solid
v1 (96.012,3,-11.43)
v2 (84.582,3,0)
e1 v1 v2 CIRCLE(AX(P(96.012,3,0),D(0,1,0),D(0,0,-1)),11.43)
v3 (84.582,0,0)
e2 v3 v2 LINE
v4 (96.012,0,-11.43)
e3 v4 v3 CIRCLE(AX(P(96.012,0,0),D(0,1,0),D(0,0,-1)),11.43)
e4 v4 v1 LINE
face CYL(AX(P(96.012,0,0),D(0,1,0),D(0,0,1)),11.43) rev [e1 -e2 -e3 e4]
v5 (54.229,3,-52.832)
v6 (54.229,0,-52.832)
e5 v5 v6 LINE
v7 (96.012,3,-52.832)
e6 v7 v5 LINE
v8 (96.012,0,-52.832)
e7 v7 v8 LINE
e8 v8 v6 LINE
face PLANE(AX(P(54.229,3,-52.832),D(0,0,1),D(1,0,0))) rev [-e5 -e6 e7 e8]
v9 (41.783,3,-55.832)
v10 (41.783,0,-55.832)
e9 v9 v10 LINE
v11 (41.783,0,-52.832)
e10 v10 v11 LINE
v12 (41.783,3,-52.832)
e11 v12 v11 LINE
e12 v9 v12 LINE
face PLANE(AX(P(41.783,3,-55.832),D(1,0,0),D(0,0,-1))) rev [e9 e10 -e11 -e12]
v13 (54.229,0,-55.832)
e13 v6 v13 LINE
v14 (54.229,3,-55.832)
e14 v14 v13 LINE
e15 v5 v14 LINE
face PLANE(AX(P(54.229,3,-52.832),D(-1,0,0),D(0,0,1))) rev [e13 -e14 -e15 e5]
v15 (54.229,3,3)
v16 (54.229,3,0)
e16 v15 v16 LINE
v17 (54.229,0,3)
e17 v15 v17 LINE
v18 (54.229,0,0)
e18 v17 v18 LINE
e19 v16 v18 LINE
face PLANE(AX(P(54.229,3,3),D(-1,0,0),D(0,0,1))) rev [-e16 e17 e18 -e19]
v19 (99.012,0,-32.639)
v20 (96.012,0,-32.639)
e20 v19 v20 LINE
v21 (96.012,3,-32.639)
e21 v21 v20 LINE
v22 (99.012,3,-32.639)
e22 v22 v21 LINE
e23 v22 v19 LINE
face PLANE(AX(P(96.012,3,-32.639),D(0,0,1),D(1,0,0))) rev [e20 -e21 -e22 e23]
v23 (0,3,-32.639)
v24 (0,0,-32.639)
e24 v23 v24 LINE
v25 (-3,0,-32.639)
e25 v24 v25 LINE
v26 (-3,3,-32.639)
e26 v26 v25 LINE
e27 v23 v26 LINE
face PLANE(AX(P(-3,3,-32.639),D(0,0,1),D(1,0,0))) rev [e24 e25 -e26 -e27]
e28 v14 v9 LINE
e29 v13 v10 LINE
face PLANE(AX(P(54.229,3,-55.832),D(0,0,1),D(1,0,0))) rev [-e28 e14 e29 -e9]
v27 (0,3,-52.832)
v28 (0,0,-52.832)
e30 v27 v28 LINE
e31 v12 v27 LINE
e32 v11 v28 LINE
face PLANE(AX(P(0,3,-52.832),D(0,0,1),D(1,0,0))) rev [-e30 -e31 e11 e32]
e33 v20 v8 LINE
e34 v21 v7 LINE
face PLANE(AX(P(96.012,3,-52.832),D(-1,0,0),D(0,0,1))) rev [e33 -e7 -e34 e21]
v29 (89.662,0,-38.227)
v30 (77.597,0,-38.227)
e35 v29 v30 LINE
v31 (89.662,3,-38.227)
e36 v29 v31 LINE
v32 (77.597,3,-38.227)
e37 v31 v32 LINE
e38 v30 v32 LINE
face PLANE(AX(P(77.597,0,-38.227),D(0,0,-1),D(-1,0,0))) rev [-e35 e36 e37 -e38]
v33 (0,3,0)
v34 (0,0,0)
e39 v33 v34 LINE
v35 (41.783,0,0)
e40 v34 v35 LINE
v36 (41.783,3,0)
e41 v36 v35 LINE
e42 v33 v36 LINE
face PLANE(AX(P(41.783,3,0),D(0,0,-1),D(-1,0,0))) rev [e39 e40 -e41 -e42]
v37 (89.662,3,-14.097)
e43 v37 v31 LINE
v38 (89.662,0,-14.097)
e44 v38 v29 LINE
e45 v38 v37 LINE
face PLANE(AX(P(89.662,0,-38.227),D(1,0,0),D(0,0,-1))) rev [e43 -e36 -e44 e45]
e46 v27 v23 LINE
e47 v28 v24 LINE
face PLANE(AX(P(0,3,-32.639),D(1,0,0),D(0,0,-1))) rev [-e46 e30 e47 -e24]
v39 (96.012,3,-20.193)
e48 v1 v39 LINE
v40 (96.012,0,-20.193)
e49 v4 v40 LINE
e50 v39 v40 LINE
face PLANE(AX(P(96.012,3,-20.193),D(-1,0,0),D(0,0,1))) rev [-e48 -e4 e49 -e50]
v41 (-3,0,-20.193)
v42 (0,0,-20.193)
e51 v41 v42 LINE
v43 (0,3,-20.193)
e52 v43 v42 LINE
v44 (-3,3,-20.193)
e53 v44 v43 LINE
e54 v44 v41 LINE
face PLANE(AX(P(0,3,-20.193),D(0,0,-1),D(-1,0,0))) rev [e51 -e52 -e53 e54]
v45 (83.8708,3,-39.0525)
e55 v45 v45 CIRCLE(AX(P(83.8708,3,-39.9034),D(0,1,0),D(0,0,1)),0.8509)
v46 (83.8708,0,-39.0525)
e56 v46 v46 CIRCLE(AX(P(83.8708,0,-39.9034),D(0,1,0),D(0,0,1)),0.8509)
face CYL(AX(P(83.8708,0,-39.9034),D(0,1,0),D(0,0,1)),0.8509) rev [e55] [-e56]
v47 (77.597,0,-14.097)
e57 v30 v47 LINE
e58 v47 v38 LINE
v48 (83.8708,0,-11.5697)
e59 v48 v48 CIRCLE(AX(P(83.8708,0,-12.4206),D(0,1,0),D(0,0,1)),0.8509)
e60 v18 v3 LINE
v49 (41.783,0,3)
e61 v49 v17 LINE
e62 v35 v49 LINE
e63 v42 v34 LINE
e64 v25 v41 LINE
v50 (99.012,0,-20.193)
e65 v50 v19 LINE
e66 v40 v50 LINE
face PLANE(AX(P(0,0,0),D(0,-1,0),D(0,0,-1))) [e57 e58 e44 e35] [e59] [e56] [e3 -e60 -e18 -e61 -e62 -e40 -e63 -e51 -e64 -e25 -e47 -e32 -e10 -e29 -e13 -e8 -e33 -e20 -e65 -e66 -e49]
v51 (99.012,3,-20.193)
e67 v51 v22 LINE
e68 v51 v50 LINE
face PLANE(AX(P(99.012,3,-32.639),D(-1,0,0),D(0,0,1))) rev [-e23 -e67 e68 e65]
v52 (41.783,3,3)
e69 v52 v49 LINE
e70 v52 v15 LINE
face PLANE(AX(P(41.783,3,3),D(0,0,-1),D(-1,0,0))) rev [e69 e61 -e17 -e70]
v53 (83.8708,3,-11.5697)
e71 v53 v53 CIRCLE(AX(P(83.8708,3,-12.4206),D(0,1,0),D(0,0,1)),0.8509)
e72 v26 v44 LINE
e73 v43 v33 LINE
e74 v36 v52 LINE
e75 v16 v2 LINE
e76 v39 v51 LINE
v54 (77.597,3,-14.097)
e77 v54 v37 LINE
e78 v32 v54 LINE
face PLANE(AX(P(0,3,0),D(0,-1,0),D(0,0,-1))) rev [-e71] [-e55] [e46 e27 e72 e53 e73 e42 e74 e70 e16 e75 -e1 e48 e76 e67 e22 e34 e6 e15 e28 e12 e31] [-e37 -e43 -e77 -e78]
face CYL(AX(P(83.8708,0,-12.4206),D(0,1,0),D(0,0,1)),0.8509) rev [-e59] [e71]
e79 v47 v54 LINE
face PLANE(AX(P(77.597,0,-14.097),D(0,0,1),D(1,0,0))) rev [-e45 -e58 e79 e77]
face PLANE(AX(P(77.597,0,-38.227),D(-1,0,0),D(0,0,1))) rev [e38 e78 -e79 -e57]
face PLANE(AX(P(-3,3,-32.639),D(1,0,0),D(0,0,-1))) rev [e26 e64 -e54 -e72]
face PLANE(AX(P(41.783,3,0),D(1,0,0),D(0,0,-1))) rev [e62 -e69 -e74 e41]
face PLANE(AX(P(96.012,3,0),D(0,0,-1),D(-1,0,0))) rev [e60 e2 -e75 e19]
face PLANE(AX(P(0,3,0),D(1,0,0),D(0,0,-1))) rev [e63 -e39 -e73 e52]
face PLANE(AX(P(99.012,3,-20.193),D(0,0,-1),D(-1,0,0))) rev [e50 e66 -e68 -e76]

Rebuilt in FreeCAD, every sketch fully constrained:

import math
import FreeCAD as App
import Part
import Sketcher
from FreeCAD import Vector
Q = App.Units.Quantity


def add_polygon(sketch, points):
    """Adds a closed chain of lines whose ends are joined by coincident constraints."""
    first, n = sketch.GeometryCount, len(points)
    for a, b in zip(points, points[1:] + points[:1]):
        sketch.addGeometry(Part.LineSegment(App.Vector(*a, 0), App.Vector(*b, 0)), False)
    for i in range(n):
        sketch.addConstraint(Sketcher.Constraint("Coincident", first + i, 2, first + (i + 1) % n, 1))

doc = App.newDocument("Part")
params = doc.addObject("Spreadsheet::Sheet", "Params")
for row, (alias, value) in enumerate([
    ("sketch1_width", "0.49 in"),
    ("sketch1_width2", "1.645 in"),
    ("sketch1_height", "0.795 in"),
    ("pad1_length", "3 mm"),
    ("sketch2_height", "0.95 in"),
    ("sketch2_width", "0.475 in"),
    ("sketch3_radius", "0.45 in"),
    ("sketch4_diameter", "0.067 in"),
], start=1):
    params.set(f"A{row}", alias)
    params.set(f"B{row}", "=" + value)
    params.setAlias(f"B{row}", alias)

body = doc.addObject("PartDesign::Body", "Body")

# Sketch on XZ plane
sketch1 = doc.addObject("Sketcher::SketchObject", "Sketch")
body.addObject(sketch1)
sketch1.AttachmentSupport = (doc.XZ_Plane, [""])
sketch1.MapMode = "FlatFace"
add_polygon(sketch1, [(0, -20.2), (0, 0), (41.8, 0), (41.8, 3), (54.2, 3), (54.2, 0), (96, 0), (96, -20.2), (99, -20.2), (99, -32.6), (96, -32.6), (96, -52.8), (54.2, -52.8), (54.2, -55.8), (41.8, -55.8), (41.8, -52.8), (0, -52.8), (0, -32.6), (-3, -32.6), (-3, -20.2)])  # lines 0-19
sketch1.addConstraint([
    Sketcher.Constraint("Vertical", 0),
    Sketcher.Constraint("Horizontal", 1),
    Sketcher.Constraint("Vertical", 2),
    Sketcher.Constraint("Horizontal", 3),
    Sketcher.Constraint("Vertical", 4),
    Sketcher.Constraint("Horizontal", 5),
    Sketcher.Constraint("Vertical", 6),
    Sketcher.Constraint("Horizontal", 7),
    Sketcher.Constraint("Vertical", 8),
    Sketcher.Constraint("Horizontal", 9),
    Sketcher.Constraint("Vertical", 10),
    Sketcher.Constraint("Horizontal", 11),
    Sketcher.Constraint("Vertical", 12),
    Sketcher.Constraint("Horizontal", 13),
    Sketcher.Constraint("Vertical", 14),
    Sketcher.Constraint("Horizontal", 15),
    Sketcher.Constraint("Vertical", 16),
    Sketcher.Constraint("Horizontal", 17),
    Sketcher.Constraint("Vertical", 18),
    Sketcher.Constraint("Horizontal", 19),
    Sketcher.Constraint("Coincident", 0, 2, -1, 1),
    Sketcher.Constraint("PointOnObject", 4, 2, -1),
    Sketcher.Constraint("PointOnObject", 15, 2, -2),
    Sketcher.Constraint("Horizontal", 11, 2, 14, 2),
    Sketcher.Constraint("Horizontal", 9, 2, 16, 2),
    Sketcher.Constraint("Horizontal", 7, 2, 18, 2),
    Sketcher.Constraint("Vertical", 6, 2, 9, 2),
    Sketcher.Constraint("Vertical", 4, 2, 11, 2),
    Sketcher.Constraint("Vertical", 2, 2, 13, 2),
    Sketcher.Constraint("Equal", 1, 5),
    Sketcher.Constraint("Equal", 9, 17),
    Sketcher.Constraint("Equal", 19, 2),
    Sketcher.Constraint("Equal", 13, 8),
    Sketcher.Constraint("Equal", 6, 10),
    Sketcher.Constraint("Equal", 4, 12),
    Sketcher.Constraint("DistanceX", 3, 1, 3, 2, Q("0.49 in")),
    Sketcher.Constraint("DistanceX", 1, 1, 1, 2, Q("1.645 in")),
    Sketcher.Constraint("DistanceY", 0, 1, 0, 2, Q("0.795 in")),
    Sketcher.Constraint("DistanceX", 7, 1, 7, 2, 3.0),
])
sketch1.setExpression("Constraints[55]", "Params.sketch1_width")
sketch1.setExpression("Constraints[56]", "Params.sketch1_width2")
sketch1.setExpression("Constraints[57]", "Params.sketch1_height")
pad1 = doc.addObject("PartDesign::Pad", "Pad")
body.addObject(pad1)
pad1.Profile = sketch1
pad1.setExpression("Length", "Params.pad1_length")
pad1.Reversed = True

# Sketch on XZ plane
sketch2 = doc.addObject("Sketcher::SketchObject", "Sketch001")
body.addObject(sketch2)
sketch2.AttachmentSupport = (doc.XZ_Plane, [""])
sketch2.MapMode = "FlatFace"
sketch2.AttachmentOffset = App.Placement(Vector(0, 0, -3), App.Rotation())
add_polygon(sketch2, [(78, -38), (78, -14), (90, -14), (90, -38)])  # lines 0-3
sketch2.addConstraint([
    Sketcher.Constraint("Vertical", 0),
    Sketcher.Constraint("Horizontal", 1),
    Sketcher.Constraint("Vertical", 2),
    Sketcher.Constraint("Horizontal", 3),
    Sketcher.Constraint("DistanceY", 0, 1, 0, 2, Q("0.95 in")),
    Sketcher.Constraint("DistanceX", 1, 1, 1, 2, Q("0.475 in")),
    Sketcher.Constraint("DistanceX", -1, 1, 1, 2, Q("3.53 in")),
    Sketcher.Constraint("DistanceY", 0, 2, -1, 1, Q("0.555 in")),
])
sketch2.setExpression("Constraints[8]", "Params.sketch2_height")
sketch2.setExpression("Constraints[9]", "Params.sketch2_width")
pocket1 = doc.addObject("PartDesign::Pocket", "Pocket")
body.addObject(pocket1)
pocket1.Profile = sketch2
pocket1.Type = "ThroughAll"
pocket1.Reversed = True

# Sketch on XZ plane
sketch3 = doc.addObject("Sketcher::SketchObject", "Sketch002")
body.addObject(sketch3)
sketch3.AttachmentSupport = (doc.XZ_Plane, [""])
sketch3.MapMode = "FlatFace"
sketch3.AttachmentOffset = App.Placement(Vector(0, 0, -3), App.Rotation())
sketch3.addGeometry([
    Part.LineSegment(Vector(96, 0, 0), Vector(96, -11, 0)),
    Part.ArcOfCircle(Part.Circle(Vector(96, 0, 0), Vector(0, 0, 1), 11), math.radians(180), math.radians(270)),
    Part.LineSegment(Vector(85, 0, 0), Vector(96, 0, 0)),
], False)
sketch3.addConstraint([
    Sketcher.Constraint("Coincident", 0, 2, 1, 2),
    Sketcher.Constraint("Coincident", 1, 1, 2, 1),
    Sketcher.Constraint("Coincident", 2, 2, 0, 1),
    Sketcher.Constraint("Vertical", 0),
    Sketcher.Constraint("Horizontal", 2),
    Sketcher.Constraint("Coincident", 2, 2, 1, 3),
    Sketcher.Constraint("PointOnObject", 1, 3, -1),
    Sketcher.Constraint("Radius", 1, Q("0.45 in")),
    Sketcher.Constraint("DistanceX", -1, 1, 1, 3, Q("3.78 in")),
])
sketch3.setExpression("Constraints[7]", "Params.sketch3_radius")
pocket2 = doc.addObject("PartDesign::Pocket", "Pocket001")
body.addObject(pocket2)
pocket2.Profile = sketch3
pocket2.Type = "ThroughAll"
pocket2.Reversed = True

# Sketch on XZ plane
sketch4 = doc.addObject("Sketcher::SketchObject", "Sketch003")
body.addObject(sketch4)
sketch4.AttachmentSupport = (doc.XZ_Plane, [""])
sketch4.MapMode = "FlatFace"
sketch4.AttachmentOffset = App.Placement(Vector(0, 0, -3), App.Rotation())
sketch4.addGeometry([
    Part.Circle(Vector(83.9, -39.9, 0), Vector(0, 0, 1), 0.9),
    Part.Circle(Vector(83.9, -12.4, 0), Vector(0, 0, 1), 0.9),
], False)
sketch4.addConstraint([
    Sketcher.Constraint("Equal", 0, 1),
    Sketcher.Constraint("Vertical", 0, 3, 1, 3),
    Sketcher.Constraint("Diameter", 0, Q("0.067 in")),
    Sketcher.Constraint("DistanceX", -1, 1, 0, 3, Q("3.302 in")),
    Sketcher.Constraint("DistanceY", 0, 3, -1, 1, Q("1.571 in")),
    Sketcher.Constraint("DistanceY", 1, 3, -1, 1, Q("0.489 in")),
])
sketch4.setExpression("Constraints[2]", "Params.sketch4_diameter")
pocket3 = doc.addObject("PartDesign::Pocket", "Pocket002")
body.addObject(pocket3)
pocket3.Profile = sketch4
pocket3.Type = "ThroughAll"
pocket3.Reversed = True

doc.recompute()
